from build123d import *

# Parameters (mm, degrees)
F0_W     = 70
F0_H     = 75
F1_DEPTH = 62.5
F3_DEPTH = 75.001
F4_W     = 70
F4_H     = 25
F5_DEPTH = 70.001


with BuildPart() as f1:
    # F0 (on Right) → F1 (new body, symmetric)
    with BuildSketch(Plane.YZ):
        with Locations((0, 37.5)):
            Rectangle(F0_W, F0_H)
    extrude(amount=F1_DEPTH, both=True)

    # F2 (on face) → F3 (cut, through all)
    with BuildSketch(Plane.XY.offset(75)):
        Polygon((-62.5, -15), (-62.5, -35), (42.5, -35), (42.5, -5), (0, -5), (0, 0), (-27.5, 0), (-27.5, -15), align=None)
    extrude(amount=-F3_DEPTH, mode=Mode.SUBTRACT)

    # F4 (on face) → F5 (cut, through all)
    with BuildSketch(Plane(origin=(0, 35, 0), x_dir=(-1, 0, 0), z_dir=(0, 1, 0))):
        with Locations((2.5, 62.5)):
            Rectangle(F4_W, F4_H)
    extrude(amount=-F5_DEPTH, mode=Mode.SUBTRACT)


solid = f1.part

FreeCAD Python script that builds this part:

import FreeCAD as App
import Part
import Sketcher

V = App.Vector
Q = App.Units.Quantity


def add_polygon(sketch, points):
    """Adds a closed chain of lines whose ends are joined by coincident constraints."""
    first, n = sketch.GeometryCount, len(points)
    for a, b in zip(points, points[1:] + points[:1]):
        sketch.addGeometry(Part.LineSegment(App.Vector(*a, 0), App.Vector(*b, 0)), False)
    for i in range(n):
        sketch.addConstraint(Sketcher.Constraint("Coincident", first + i, 2, first + (i + 1) % n, 1))

doc = App.newDocument("Part")
params = doc.addObject("Spreadsheet::Sheet", "Params")
for row, (alias, value) in enumerate([
    ("sketch1_width", "70 mm"),
    ("sketch1_height", "75 mm"),
    ("pad1_length", "125 mm"),
    ("sketch2_width", "105 mm"),
    ("sketch2_width2", "35 mm"),
    ("sketch2_height", "20 mm"),
    ("sketch2_height2", "30 mm"),
    ("sketch2_height3", "5 mm"),
    ("sketch3_width", "70 mm"),
    ("sketch3_height", "25 mm"),
], start=1):
    params.set(f"A{row}", alias)
    params.set(f"B{row}", "=" + value)
    params.setAlias(f"B{row}", alias)

body = doc.addObject("PartDesign::Body", "Body")

# Sketch on YZ plane
sketch1 = body.newObject("Sketcher::SketchObject", "Sketch")
sketch1.AttachmentSupport = (doc.getObject("YZ_Plane"), [""])
sketch1.MapMode = "FlatFace"
add_polygon(sketch1, [(-35, 75), (-35, 0), (35, 0), (35, 75)])  # lines 0-3
sketch1.addConstraint([
    Sketcher.Constraint("Vertical", 0),
    Sketcher.Constraint("Horizontal", 1),
    Sketcher.Constraint("Vertical", 2),
    Sketcher.Constraint("Horizontal", 3),
    Sketcher.Constraint("Symmetric", 0, 2, 1, 2, -1, 1),
    Sketcher.Constraint("DistanceX", 1, 1, 1, 2, Q("70 mm")),
    Sketcher.Constraint("DistanceY", 0, 2, 0, 1, Q("75 mm")),
])
sketch1.setExpression("Constraints[9]", "Params.sketch1_width")
sketch1.setExpression("Constraints[10]", "Params.sketch1_height")
pad1 = body.newObject("PartDesign::Pad", "Pad")
pad1.Profile = sketch1
pad1.setExpression("Length", "Params.pad1_length")
pad1.Midplane = True

# Sketch on XY plane
sketch2 = body.newObject("Sketcher::SketchObject", "Sketch001")
sketch2.AttachmentSupport = (doc.getObject("XY_Plane"), [""])
sketch2.MapMode = "FlatFace"
sketch2.AttachmentOffset = App.Placement(V(0, 0, 75), App.Rotation())
add_polygon(sketch2, [(-62, -15), (-62, -35), (42, -35), (42, -5), (0, -5), (0, 0), (-28, 0), (-28, -15)])  # lines 0-7
sketch2.addConstraint([
    Sketcher.Constraint("Vertical", 0),
    Sketcher.Constraint("Horizontal", 1),
    Sketcher.Constraint("Vertical", 2),
    Sketcher.Constraint("Horizontal", 3),
    Sketcher.Constraint("Vertical", 4),
    Sketcher.Constraint("Horizontal", 5),
    Sketcher.Constraint("Vertical", 6),
    Sketcher.Constraint("Horizontal", 7),
    Sketcher.Constraint("Coincident", 4, 2, -1, 1),
    Sketcher.Constraint("DistanceX", 1, 1, 1, 2, Q("105 mm")),
    Sketcher.Constraint("DistanceX", 7, 2, 7, 1, Q("35 mm")),
    Sketcher.Constraint("DistanceY", 0, 2, 0, 1, Q("20 mm")),
    Sketcher.Constraint("DistanceY", 2, 1, 2, 2, Q("30 mm")),
    Sketcher.Constraint("DistanceY", 4, 1, 4, 2, Q("5 mm")),
    Sketcher.Constraint("DistanceX", 3, 2, 3, 1, Q("42.5 mm")),
])
sketch2.setExpression("Constraints[17]", "Params.sketch2_width")
sketch2.setExpression("Constraints[18]", "Params.sketch2_width2")
sketch2.setExpression("Constraints[19]", "Params.sketch2_height")
sketch2.setExpression("Constraints[20]", "Params.sketch2_height2")
sketch2.setExpression("Constraints[21]", "Params.sketch2_height3")
pocket1 = body.newObject("PartDesign::Pocket", "Pocket")
pocket1.Profile = sketch2
pocket1.Type = "ThroughAll"

# Sketch on XZ plane
sketch3 = body.newObject("Sketcher::SketchObject", "Sketch002")
sketch3.AttachmentSupport = (doc.getObject("XZ_Plane"), [""])
sketch3.MapMode = "FlatFace"
sketch3.AttachmentOffset = App.Placement(V(0, 0, -35), App.Rotation())
add_polygon(sketch3, [(32, 75), (32, 50), (-38, 50), (-38, 75)])  # lines 0-3
sketch3.addConstraint([
    Sketcher.Constraint("Vertical", 0),
    Sketcher.Constraint("Horizontal", 1),
    Sketcher.Constraint("Vertical", 2),
    Sketcher.Constraint("Horizontal", 3),
    Sketcher.Constraint("DistanceX", 1, 2, 1, 1, Q("70 mm")),
    Sketcher.Constraint("DistanceY", 0, 2, 0, 1, Q("25 mm")),
    Sketcher.Constraint("DistanceY", -1, 1, 0, 2, Q("50 mm")),
    Sketcher.Constraint("DistanceX", -1, 1, 0, 2, Q("32.5 mm")),
])
sketch3.setExpression("Constraints[8]", "Params.sketch3_width")
sketch3.setExpression("Constraints[9]", "Params.sketch3_height")
pocket2 = body.newObject("PartDesign::Pocket", "Pocket001")
pocket2.Profile = sketch3
pocket2.Type = "ThroughAll"
pocket2.Reversed = True

doc.recompute()
